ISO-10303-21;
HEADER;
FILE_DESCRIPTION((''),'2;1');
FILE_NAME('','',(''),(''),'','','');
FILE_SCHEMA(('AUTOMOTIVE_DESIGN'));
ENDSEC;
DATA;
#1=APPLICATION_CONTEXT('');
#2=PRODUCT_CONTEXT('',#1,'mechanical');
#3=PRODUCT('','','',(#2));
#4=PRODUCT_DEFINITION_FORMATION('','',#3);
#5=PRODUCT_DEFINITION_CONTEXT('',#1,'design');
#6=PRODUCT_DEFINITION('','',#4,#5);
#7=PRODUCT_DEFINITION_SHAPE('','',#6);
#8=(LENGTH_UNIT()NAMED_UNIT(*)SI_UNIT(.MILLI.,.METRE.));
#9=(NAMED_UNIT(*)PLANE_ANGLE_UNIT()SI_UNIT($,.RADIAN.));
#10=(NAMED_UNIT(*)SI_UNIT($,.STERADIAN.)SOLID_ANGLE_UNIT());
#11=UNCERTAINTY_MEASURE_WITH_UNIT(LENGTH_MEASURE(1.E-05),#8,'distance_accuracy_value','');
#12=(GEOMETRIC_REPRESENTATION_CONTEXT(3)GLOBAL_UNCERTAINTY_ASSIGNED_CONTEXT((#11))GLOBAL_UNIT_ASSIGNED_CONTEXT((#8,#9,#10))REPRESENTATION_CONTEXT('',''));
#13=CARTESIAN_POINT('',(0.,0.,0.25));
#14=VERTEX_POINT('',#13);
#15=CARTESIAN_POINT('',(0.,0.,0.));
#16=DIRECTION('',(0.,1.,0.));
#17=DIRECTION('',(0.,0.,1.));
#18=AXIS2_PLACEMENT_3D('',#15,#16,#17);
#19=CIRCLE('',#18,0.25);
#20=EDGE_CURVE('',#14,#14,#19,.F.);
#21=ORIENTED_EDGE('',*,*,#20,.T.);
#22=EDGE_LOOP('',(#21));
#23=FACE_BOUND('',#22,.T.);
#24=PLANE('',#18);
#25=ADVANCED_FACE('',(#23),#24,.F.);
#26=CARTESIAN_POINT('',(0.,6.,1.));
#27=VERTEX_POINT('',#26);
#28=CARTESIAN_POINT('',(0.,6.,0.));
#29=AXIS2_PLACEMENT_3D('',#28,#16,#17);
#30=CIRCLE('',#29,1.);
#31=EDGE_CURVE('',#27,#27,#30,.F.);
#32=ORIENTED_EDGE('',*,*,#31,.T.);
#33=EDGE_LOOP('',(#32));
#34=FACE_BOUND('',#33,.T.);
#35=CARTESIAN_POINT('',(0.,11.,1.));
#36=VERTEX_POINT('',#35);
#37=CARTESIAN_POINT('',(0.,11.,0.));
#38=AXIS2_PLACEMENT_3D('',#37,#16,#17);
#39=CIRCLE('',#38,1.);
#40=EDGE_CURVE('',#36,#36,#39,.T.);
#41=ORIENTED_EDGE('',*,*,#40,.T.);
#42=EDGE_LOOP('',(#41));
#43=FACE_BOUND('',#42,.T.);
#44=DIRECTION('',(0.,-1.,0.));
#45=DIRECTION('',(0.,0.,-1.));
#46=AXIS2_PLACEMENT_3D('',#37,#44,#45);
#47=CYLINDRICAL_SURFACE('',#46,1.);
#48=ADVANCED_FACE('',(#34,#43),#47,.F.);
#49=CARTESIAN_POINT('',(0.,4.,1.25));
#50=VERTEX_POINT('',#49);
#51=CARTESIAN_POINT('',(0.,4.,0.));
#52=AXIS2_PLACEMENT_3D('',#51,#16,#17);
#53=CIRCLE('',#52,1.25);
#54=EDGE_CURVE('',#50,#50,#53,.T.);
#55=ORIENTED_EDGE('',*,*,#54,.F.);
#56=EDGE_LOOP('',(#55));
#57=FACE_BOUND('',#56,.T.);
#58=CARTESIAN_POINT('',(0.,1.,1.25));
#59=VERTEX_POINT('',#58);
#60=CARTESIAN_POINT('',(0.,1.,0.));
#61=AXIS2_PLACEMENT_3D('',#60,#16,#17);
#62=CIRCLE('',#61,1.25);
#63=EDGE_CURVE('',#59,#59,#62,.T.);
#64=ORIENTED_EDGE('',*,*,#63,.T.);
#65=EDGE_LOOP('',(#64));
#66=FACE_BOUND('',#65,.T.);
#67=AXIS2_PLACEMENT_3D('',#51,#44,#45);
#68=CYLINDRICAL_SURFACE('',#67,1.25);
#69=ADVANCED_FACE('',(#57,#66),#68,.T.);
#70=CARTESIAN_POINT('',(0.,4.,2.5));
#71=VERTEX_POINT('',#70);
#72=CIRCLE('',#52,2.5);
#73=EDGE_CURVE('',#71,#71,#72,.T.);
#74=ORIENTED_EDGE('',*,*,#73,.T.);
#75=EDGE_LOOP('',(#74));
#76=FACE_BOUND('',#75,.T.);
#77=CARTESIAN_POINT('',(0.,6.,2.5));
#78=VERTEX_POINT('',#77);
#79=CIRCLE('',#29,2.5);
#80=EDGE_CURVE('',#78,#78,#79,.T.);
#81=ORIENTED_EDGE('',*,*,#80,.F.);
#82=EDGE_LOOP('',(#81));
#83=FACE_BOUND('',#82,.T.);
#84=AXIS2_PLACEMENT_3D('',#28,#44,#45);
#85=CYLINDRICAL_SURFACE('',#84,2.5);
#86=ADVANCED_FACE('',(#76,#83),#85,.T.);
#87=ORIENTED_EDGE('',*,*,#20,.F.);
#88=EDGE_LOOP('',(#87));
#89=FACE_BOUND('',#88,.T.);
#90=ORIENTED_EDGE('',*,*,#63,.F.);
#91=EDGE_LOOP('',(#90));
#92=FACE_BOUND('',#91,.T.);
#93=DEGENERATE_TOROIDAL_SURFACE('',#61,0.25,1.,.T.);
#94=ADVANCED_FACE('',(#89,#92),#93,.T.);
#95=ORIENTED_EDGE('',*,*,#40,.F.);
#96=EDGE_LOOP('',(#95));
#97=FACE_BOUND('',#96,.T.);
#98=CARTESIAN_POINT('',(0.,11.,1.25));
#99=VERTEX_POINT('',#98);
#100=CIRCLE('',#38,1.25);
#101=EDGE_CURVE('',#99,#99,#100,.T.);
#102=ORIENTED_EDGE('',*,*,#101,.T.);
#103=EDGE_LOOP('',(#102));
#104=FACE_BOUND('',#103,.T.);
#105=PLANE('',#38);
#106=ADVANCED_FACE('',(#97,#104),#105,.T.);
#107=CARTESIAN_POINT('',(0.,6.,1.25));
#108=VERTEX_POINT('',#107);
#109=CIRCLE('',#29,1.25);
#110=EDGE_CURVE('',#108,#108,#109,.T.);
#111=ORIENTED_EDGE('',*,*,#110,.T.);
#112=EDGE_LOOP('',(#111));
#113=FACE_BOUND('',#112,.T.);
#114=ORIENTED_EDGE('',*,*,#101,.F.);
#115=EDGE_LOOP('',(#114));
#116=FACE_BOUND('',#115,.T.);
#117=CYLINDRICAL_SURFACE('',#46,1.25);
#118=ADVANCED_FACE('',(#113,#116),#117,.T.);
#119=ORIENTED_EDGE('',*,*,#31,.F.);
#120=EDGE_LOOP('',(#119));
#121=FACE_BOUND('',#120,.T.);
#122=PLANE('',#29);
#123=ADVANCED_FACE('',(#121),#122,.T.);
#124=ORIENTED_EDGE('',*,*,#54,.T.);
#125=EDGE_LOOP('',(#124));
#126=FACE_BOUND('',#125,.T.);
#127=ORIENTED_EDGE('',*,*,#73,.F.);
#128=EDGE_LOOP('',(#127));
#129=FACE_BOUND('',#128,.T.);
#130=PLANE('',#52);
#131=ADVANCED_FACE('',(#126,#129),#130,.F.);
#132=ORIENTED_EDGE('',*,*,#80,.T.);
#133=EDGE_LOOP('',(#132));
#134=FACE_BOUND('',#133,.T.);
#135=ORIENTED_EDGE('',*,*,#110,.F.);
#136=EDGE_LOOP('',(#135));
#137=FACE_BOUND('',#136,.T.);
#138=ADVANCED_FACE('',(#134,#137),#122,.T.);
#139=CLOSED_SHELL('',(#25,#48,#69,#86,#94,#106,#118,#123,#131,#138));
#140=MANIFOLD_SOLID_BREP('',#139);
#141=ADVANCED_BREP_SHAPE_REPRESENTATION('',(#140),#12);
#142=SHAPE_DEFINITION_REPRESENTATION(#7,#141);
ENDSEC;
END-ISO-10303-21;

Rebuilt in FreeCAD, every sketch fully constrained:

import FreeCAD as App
import Part
import Sketcher
from FreeCAD import Vector


def edges_at(feature, points):
    """Names of the edges that pass closest to the given points."""
    edges = feature.Shape.Edges
    near = lambda p: min(range(len(edges)), key=lambda i: edges[i].distToShape(Part.Vertex(*p))[0])
    return sorted({f"Edge{near(p) + 1}" for p in points})

doc = App.newDocument("Part")
body = doc.addObject("PartDesign::Body", "Body")

sketch1 = body.newObject("Sketcher::SketchObject", "Sketch")
sketch1.AttachmentSupport = (doc.getObject("XZ_Plane"), [""])
sketch1.MapMode = "FlatFace"
sketch1.addGeometry(Part.Circle(Vector(0, 0, 0), Vector(0, 0, 1), 1.2), False)
sketch1.addConstraint([
    Sketcher.Constraint("Coincident", 0, 3, -1, 1),
    Sketcher.Constraint("Diameter", 0, 2.5),
])
pad1 = body.newObject("PartDesign::Pad", "Pad")
pad1.Profile = sketch1
pad1.Length = 4
pad1.Reversed = True

sketch2 = body.newObject("Sketcher::SketchObject", "Sketch001")
sketch2.AttachmentSupport = (doc.getObject("XZ_Plane"), [""])
sketch2.MapMode = "FlatFace"
sketch2.AttachmentOffset = App.Placement(Vector(0, 0, -4), App.Rotation())
sketch2.addGeometry(Part.Circle(Vector(0, 0, 0), Vector(0, 0, 1), 2.5), False)
sketch2.addConstraint([
    Sketcher.Constraint("Coincident", 0, 3, -1, 1),
    Sketcher.Constraint("Diameter", 0, 5.0),
])
pad2 = body.newObject("PartDesign::Pad", "Pad001")
pad2.Profile = sketch2
pad2.Length = 2
pad2.Reversed = True

sketch3 = body.newObject("Sketcher::SketchObject", "Sketch002")
sketch3.AttachmentSupport = (doc.getObject("XZ_Plane"), [""])
sketch3.MapMode = "FlatFace"
sketch3.AttachmentOffset = App.Placement(Vector(0, 0, -6), App.Rotation())
sketch3.addGeometry([
    Part.Circle(Vector(0, 0, 0), Vector(0, 0, 1), 1.2),
    Part.Circle(Vector(0, 0, 0), Vector(0, 0, 1), 1),
], False)
sketch3.addConstraint([
    Sketcher.Constraint("Coincident", 0, 3, -1, 1),
    Sketcher.Constraint("Coincident", 1, 3, -1, 1),
    Sketcher.Constraint("Diameter", 1, 2.0),
    Sketcher.Constraint("Diameter", 0, 2.5),
])
pad3 = body.newObject("PartDesign::Pad", "Pad002")
pad3.Profile = sketch3
pad3.Length = 5
pad3.Reversed = True
doc.recompute()

fillet = body.newObject("PartDesign::Fillet", "Fillet")
fillet.Base = (pad3, edges_at(pad3, [(-1.25, 0, 0)]))
fillet.Radius = 1

doc.recompute()
